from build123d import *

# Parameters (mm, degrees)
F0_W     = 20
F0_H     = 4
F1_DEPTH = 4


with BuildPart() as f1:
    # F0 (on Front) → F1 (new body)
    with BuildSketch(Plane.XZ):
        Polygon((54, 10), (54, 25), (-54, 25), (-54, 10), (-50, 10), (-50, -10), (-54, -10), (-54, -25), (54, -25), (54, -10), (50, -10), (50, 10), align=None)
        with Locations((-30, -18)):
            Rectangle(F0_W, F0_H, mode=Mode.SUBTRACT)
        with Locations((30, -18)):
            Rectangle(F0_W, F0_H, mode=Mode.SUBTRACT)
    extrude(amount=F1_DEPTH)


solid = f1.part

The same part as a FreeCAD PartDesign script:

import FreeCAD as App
import Part
import Sketcher
Q = App.Units.Quantity

doc = App.newDocument("Part")
body = doc.addObject("PartDesign::Body", "Body")

# Sketch on XZ plane
sketch1 = body.newObject("Sketcher::SketchObject", "Sketch")
sketch1.AttachmentSupport = (doc.getObject("XZ_Plane"), [""])
sketch1.MapMode = "FlatFace"
sketch1.addGeometry([
    Part.LineSegment(App.Vector(54, 10, 0), App.Vector(54, 25, 0)),  # 0
    Part.LineSegment(App.Vector(54, 25, 0), App.Vector(-54, 25, 0)),  # 1
    Part.LineSegment(App.Vector(-54, 25, 0), App.Vector(-54, 10, 0)),  # 2
    Part.LineSegment(App.Vector(-54, 10, 0), App.Vector(-50, 10, 0)),  # 3
    Part.LineSegment(App.Vector(-50, 10, 0), App.Vector(-50, -10, 0)),  # 4
    Part.LineSegment(App.Vector(-50, -10, 0), App.Vector(-54, -10, 0)),  # 5
    Part.LineSegment(App.Vector(-54, -10, 0), App.Vector(-54, -25, 0)),  # 6
    Part.LineSegment(App.Vector(-54, -25, 0), App.Vector(54, -25, 0)),  # 7
    Part.LineSegment(App.Vector(54, -25, 0), App.Vector(54, -10, 0)),  # 8
    Part.LineSegment(App.Vector(54, -10, 0), App.Vector(50, -10, 0)),  # 9
    Part.LineSegment(App.Vector(50, -10, 0), App.Vector(50, 10, 0)),  # 10
    Part.LineSegment(App.Vector(50, 10, 0), App.Vector(54, 10, 0)),  # 11
    Part.LineSegment(App.Vector(-20, -20, 0), App.Vector(-40, -20, 0)),  # 12
    Part.LineSegment(App.Vector(-40, -20, 0), App.Vector(-40, -16, 0)),  # 13
    Part.LineSegment(App.Vector(-40, -16, 0), App.Vector(-20, -16, 0)),  # 14
    Part.LineSegment(App.Vector(-20, -16, 0), App.Vector(-20, -20, 0)),  # 15
    Part.LineSegment(App.Vector(40, -20, 0), App.Vector(20, -20, 0)),  # 16
    Part.LineSegment(App.Vector(20, -20, 0), App.Vector(20, -16, 0)),  # 17
    Part.LineSegment(App.Vector(20, -16, 0), App.Vector(40, -16, 0)),  # 18
    Part.LineSegment(App.Vector(40, -16, 0), App.Vector(40, -20, 0)),  # 19
], False)
sketch1.addConstraint([
    Sketcher.Constraint("Coincident", 0, 2, 1, 1),
    Sketcher.Constraint("Coincident", 1, 2, 2, 1),
    Sketcher.Constraint("Coincident", 2, 2, 3, 1),
    Sketcher.Constraint("Coincident", 3, 2, 4, 1),
    Sketcher.Constraint("Coincident", 4, 2, 5, 1),
    Sketcher.Constraint("Coincident", 5, 2, 6, 1),
    Sketcher.Constraint("Coincident", 6, 2, 7, 1),
    Sketcher.Constraint("Coincident", 7, 2, 8, 1),
    Sketcher.Constraint("Coincident", 8, 2, 9, 1),
    Sketcher.Constraint("Coincident", 9, 2, 10, 1),
    Sketcher.Constraint("Coincident", 10, 2, 11, 1),
    Sketcher.Constraint("Coincident", 11, 2, 0, 1),
    Sketcher.Constraint("Coincident", 12, 2, 13, 1),
    Sketcher.Constraint("Coincident", 13, 2, 14, 1),
    Sketcher.Constraint("Coincident", 14, 2, 15, 1),
    Sketcher.Constraint("Coincident", 15, 2, 12, 1),
    Sketcher.Constraint("Coincident", 16, 2, 17, 1),
    Sketcher.Constraint("Coincident", 17, 2, 18, 1),
    Sketcher.Constraint("Coincident", 18, 2, 19, 1),
    Sketcher.Constraint("Coincident", 19, 2, 16, 1),
    Sketcher.Constraint("Vertical", 0),
    Sketcher.Constraint("Horizontal", 1),
    Sketcher.Constraint("Vertical", 2),
    Sketcher.Constraint("Horizontal", 3),
    Sketcher.Constraint("Vertical", 4),
    Sketcher.Constraint("Horizontal", 5),
    Sketcher.Constraint("Vertical", 6),
    Sketcher.Constraint("Horizontal", 7),
    Sketcher.Constraint("Vertical", 8),
    Sketcher.Constraint("Horizontal", 9),
    Sketcher.Constraint("Vertical", 10),
    Sketcher.Constraint("Horizontal", 11),
    Sketcher.Constraint("Horizontal", 12),
    Sketcher.Constraint("Vertical", 13),
    Sketcher.Constraint("Horizontal", 14),
    Sketcher.Constraint("Vertical", 15),
    Sketcher.Constraint("Horizontal", 16),
    Sketcher.Constraint("Vertical", 17),
    Sketcher.Constraint("Horizontal", 18),
    Sketcher.Constraint("Vertical", 19),
    Sketcher.Constraint("Symmetric", 0, 2, 6, 2, -1, 1),
    Sketcher.Constraint("Symmetric", 2, 2, 8, 2, -1, 1),
    Sketcher.Constraint("Symmetric", 4, 2, 10, 2, -1, 1),
    Sketcher.Constraint("Symmetric", 5, 2, 8, 2, -2),
    Sketcher.Constraint("Symmetric", 15, 2, 16, 2, -2),
    Sketcher.Constraint("Symmetric", 13, 2, 18, 2, -2),
    Sketcher.Constraint("Equal", 18, 4),
    Sketcher.Constraint("Equal", 11, 13),
    Sketcher.Constraint("DistanceX", 1, 2, 1, 1, Q("108 mm")),
    Sketcher.Constraint("DistanceX", 3, 1, 3, 2, Q("4 mm")),
    Sketcher.Constraint("DistanceX", 12, 2, 12, 1, Q("20 mm")),
    Sketcher.Constraint("DistanceY", 0, 1, 0, 2, Q("15 mm")),
    Sketcher.Constraint("DistanceX", 12, 2, -1, 1, Q("40 mm")),
    Sketcher.Constraint("DistanceY", 12, 2, -1, 1, Q("20 mm")),
])
pad1 = body.newObject("PartDesign::Pad", "Pad")
pad1.Profile = sketch1
pad1.Length = 4

doc.recompute()
